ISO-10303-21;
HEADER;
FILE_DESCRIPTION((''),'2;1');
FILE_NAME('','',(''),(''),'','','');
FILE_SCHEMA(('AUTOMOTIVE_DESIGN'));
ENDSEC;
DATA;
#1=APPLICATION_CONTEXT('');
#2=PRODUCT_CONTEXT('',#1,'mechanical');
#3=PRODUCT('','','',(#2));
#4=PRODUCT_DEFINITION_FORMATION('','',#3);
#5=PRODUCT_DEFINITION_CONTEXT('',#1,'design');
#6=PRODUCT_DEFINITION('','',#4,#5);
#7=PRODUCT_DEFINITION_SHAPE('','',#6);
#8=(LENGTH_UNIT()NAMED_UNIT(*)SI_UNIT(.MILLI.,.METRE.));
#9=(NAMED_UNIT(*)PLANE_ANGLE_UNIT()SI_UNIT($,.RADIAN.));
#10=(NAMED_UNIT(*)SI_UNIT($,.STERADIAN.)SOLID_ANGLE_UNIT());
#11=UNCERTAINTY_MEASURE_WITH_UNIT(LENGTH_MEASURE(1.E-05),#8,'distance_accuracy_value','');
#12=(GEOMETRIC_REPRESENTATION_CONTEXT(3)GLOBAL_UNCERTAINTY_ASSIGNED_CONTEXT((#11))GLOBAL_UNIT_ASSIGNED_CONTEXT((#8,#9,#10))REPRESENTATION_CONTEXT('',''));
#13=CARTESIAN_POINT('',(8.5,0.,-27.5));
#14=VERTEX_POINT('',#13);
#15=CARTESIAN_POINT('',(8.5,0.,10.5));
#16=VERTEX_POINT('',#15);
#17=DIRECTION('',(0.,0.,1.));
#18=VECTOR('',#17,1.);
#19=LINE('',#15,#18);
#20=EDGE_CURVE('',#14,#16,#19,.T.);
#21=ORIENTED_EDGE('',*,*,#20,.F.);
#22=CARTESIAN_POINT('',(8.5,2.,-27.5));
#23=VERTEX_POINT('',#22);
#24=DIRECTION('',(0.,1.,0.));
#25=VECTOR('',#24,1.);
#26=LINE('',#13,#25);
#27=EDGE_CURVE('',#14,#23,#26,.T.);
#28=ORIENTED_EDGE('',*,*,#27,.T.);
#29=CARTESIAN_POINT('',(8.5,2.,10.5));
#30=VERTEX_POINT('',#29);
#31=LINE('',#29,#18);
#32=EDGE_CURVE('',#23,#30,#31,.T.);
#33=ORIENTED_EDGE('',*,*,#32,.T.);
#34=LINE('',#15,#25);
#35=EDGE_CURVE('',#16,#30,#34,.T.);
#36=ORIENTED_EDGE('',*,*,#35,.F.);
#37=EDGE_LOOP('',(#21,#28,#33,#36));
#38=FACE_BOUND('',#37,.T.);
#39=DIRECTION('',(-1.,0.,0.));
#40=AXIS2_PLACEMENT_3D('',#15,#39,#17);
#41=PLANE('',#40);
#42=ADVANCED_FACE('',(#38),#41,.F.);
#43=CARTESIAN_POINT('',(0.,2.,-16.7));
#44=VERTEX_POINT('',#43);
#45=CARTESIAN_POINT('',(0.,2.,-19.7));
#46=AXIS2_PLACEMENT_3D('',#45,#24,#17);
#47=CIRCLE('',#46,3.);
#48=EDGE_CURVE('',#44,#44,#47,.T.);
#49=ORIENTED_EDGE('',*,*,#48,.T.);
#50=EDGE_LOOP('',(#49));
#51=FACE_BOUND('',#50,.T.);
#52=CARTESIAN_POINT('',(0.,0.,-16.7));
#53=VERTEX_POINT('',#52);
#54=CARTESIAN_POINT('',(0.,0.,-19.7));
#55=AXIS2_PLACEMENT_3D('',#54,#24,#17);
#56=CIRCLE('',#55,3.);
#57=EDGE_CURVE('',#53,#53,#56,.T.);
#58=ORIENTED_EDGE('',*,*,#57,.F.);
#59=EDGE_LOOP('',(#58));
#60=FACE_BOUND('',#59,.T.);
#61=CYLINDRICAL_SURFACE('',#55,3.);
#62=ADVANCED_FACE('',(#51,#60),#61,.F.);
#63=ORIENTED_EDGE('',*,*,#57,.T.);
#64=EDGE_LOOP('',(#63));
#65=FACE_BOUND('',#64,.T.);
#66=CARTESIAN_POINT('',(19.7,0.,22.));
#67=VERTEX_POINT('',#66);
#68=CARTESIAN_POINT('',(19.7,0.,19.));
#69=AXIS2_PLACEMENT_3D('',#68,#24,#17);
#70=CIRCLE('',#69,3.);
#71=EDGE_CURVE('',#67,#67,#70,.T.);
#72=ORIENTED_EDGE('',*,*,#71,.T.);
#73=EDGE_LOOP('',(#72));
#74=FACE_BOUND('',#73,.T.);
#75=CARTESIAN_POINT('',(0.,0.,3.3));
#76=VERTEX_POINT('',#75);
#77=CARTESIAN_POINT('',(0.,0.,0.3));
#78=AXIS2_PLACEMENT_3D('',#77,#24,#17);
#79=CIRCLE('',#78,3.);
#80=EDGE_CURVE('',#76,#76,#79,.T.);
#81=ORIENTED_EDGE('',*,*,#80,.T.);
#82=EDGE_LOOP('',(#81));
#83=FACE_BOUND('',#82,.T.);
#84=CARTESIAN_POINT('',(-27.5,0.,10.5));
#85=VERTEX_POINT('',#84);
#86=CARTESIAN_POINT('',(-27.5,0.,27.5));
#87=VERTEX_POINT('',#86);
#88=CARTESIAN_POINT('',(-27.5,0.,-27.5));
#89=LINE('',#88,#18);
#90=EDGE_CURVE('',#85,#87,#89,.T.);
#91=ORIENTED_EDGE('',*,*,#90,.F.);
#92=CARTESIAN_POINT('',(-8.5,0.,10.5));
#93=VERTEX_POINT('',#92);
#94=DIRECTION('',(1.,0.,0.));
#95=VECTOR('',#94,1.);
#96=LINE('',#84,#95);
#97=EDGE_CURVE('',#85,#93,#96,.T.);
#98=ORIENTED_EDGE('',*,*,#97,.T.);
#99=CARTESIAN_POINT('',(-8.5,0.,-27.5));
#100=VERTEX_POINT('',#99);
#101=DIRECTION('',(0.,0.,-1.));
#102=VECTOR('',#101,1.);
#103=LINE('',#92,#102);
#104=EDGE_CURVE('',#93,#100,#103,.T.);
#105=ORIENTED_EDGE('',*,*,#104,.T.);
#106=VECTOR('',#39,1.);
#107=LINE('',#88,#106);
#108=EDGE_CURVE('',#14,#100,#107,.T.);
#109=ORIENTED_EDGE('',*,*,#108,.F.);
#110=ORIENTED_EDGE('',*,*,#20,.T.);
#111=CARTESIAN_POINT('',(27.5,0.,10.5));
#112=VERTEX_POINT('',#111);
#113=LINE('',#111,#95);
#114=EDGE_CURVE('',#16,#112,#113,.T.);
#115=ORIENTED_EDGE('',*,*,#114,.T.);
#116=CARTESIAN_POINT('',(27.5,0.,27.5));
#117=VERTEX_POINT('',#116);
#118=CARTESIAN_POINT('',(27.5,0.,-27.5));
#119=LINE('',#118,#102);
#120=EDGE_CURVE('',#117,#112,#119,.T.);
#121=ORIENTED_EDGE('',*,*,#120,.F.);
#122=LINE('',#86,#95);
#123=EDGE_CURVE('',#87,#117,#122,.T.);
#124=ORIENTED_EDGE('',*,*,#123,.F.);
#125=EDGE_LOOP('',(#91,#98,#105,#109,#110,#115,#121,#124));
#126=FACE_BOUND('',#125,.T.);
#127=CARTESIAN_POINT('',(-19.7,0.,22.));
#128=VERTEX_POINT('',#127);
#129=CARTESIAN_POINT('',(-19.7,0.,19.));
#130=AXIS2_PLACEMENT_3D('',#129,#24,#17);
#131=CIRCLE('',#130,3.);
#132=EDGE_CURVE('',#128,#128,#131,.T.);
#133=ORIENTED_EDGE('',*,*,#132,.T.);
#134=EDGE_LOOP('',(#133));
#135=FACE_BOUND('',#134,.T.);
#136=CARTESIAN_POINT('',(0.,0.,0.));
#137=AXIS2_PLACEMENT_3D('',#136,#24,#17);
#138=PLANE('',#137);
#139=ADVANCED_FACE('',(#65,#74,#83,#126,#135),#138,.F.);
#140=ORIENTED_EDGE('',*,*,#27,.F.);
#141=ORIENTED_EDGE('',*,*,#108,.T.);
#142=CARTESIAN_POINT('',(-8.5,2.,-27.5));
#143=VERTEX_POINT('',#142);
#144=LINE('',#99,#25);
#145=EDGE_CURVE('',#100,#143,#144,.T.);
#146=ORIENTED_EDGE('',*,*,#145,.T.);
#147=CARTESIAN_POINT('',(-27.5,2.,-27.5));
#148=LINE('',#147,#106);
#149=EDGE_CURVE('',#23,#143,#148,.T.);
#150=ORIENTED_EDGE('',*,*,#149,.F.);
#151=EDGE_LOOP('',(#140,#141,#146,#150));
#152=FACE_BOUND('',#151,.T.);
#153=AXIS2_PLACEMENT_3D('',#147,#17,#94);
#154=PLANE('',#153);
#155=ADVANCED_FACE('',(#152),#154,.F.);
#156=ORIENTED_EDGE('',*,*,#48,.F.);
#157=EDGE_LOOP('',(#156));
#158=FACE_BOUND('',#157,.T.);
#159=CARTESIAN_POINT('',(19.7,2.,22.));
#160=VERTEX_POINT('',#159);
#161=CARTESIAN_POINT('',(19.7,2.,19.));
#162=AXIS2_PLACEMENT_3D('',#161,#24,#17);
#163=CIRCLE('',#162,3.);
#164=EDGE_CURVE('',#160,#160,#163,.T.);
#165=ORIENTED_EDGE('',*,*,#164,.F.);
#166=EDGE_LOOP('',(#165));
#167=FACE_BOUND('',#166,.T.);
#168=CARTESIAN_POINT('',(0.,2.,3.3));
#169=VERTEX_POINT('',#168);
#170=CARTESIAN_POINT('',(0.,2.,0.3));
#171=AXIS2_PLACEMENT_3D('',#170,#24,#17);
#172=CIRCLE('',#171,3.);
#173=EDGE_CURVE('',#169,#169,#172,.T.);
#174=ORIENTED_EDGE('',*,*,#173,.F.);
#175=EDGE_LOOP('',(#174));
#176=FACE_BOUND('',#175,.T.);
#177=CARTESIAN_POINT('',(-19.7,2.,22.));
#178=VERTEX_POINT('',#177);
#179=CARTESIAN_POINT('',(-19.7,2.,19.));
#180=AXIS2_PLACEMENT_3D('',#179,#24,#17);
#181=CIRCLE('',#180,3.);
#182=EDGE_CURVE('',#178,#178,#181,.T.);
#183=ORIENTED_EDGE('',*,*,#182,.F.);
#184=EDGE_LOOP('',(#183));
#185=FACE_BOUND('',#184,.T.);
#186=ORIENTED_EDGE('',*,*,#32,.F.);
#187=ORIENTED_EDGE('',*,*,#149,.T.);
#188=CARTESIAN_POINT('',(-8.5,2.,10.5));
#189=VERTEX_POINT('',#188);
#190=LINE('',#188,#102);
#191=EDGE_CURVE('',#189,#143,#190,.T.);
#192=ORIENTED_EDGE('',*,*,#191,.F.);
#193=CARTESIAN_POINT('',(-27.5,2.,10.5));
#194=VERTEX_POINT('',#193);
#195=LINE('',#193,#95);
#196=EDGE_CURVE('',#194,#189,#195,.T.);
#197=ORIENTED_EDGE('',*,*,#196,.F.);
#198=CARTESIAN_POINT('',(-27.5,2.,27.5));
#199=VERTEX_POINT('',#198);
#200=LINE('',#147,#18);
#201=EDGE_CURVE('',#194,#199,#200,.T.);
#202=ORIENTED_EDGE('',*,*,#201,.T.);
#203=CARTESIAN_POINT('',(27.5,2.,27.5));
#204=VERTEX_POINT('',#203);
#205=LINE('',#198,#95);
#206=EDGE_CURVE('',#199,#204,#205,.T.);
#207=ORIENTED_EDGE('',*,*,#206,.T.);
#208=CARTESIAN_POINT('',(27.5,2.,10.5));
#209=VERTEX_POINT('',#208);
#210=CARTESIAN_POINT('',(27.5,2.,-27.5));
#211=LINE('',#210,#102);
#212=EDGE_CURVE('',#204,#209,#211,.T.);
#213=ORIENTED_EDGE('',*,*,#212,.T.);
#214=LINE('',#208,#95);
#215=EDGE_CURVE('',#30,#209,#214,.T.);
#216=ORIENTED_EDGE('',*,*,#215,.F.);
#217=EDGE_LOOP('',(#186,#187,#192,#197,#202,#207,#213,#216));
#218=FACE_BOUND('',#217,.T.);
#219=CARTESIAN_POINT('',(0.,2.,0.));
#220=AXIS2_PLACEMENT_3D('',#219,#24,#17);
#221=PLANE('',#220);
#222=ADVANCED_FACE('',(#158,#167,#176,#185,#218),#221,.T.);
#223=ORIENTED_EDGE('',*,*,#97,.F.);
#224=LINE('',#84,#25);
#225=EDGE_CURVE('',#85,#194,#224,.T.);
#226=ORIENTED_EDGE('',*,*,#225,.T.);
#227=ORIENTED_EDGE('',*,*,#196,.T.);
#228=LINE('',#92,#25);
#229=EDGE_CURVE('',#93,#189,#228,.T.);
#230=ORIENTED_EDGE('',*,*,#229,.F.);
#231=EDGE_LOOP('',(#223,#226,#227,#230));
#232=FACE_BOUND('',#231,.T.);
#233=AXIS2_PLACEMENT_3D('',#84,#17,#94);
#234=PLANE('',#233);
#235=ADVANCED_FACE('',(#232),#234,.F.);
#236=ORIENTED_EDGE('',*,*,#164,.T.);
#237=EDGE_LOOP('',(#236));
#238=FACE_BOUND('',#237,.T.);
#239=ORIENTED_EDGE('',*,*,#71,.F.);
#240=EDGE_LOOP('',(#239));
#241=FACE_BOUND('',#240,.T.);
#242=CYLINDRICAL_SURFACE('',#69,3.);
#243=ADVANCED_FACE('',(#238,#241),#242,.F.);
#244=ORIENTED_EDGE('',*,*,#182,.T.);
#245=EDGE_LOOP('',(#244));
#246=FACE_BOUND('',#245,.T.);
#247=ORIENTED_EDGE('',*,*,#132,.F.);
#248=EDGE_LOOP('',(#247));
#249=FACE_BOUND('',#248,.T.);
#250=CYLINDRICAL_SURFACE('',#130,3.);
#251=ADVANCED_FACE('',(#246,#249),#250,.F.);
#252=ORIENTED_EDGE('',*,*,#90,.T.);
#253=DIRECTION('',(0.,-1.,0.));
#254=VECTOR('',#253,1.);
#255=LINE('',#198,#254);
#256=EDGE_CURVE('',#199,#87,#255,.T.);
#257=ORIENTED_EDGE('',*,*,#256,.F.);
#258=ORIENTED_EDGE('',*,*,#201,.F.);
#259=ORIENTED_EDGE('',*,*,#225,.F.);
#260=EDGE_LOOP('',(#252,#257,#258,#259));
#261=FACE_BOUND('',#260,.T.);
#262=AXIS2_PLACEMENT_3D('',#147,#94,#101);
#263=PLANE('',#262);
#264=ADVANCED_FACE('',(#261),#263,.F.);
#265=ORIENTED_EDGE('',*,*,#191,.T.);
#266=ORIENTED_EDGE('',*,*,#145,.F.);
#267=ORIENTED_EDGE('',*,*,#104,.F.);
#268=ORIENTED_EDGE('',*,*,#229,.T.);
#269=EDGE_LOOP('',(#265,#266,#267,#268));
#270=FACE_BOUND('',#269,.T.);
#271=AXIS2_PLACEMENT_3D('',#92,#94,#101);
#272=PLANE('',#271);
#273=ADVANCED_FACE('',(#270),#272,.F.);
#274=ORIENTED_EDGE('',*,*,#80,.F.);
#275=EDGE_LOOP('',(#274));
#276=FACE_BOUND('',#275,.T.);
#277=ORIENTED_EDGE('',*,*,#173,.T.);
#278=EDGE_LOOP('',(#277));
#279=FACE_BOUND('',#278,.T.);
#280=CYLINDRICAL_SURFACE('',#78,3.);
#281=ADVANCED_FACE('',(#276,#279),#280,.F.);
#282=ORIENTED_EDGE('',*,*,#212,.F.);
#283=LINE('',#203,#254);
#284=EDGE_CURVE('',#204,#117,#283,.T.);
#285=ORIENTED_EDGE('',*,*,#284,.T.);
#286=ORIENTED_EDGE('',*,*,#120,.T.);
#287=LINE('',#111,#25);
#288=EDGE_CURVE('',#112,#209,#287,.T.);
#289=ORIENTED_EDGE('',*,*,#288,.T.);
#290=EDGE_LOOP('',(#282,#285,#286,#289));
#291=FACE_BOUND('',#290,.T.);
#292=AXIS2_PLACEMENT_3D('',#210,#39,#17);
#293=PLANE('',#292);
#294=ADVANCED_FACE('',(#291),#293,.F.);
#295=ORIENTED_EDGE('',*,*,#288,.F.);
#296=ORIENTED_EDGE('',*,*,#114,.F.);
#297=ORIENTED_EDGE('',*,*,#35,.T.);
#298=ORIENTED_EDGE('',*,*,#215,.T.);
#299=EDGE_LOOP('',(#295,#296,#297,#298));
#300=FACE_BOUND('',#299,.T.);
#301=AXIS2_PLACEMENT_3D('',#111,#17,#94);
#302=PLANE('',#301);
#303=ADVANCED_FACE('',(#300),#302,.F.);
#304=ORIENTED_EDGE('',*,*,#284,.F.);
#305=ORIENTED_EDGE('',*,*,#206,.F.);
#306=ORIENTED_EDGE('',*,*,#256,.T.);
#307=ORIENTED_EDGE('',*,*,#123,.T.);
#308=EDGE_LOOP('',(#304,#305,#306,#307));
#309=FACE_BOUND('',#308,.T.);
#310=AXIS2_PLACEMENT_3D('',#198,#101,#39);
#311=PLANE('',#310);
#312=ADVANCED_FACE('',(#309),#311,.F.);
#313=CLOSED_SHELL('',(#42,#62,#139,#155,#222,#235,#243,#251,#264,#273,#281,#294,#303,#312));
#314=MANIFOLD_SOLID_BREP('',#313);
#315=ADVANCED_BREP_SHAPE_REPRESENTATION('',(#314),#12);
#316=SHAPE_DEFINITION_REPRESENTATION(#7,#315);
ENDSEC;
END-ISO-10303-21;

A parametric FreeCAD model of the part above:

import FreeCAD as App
import Part
import Sketcher

V = App.Vector

doc = App.newDocument("Part")
body = doc.addObject("PartDesign::Body", "Body")

# Sketch on XZ plane
sketch1 = doc.addObject("Sketcher::SketchObject", "Sketch")
body.addObject(sketch1)
sketch1.AttachmentSupport = (doc.XZ_Plane, [""])
sketch1.MapMode = "FlatFace"
sketch1.addGeometry(Part.LineSegment(V(-27.5, -27.5, 0), V(-27.5, 27.5, 0)), False)
sketch1.addGeometry(Part.LineSegment(V(-27.5, 27.5, 0), V(27.5, 27.5, 0)), False)
sketch1.addGeometry(Part.LineSegment(V(27.5, 27.5, 0), V(27.5, -27.5, 0)), False)
sketch1.addGeometry(Part.LineSegment(V(27.5, -27.5, 0), V(-27.5, -27.5, 0)), False)
sketch1.addConstraint(Sketcher.Constraint("Coincident", 0, 2, 1, 1))
sketch1.addConstraint(Sketcher.Constraint("Coincident", 1, 2, 2, 1))
sketch1.addConstraint(Sketcher.Constraint("Coincident", 2, 2, 3, 1))
sketch1.addConstraint(Sketcher.Constraint("Coincident", 3, 2, 0, 1))
sketch1.addConstraint(Sketcher.Constraint("Vertical", 0))
sketch1.addConstraint(Sketcher.Constraint("Horizontal", 1))
sketch1.addConstraint(Sketcher.Constraint("Vertical", 2))
sketch1.addConstraint(Sketcher.Constraint("Horizontal", 3))
sketch1.addConstraint(Sketcher.Constraint("Symmetric", 0, 2, 2, 2, -1, 1))
sketch1.addConstraint(Sketcher.Constraint("Equal", 3, 0))
sketch1.addConstraint(Sketcher.Constraint("DistanceX", 1, 1, 1, 2, 55.0))
pad1 = doc.addObject("PartDesign::Pad", "Pad")
body.addObject(pad1)
pad1.Profile = sketch1
pad1.Length = 2
pad1.Reversed = True

# Sketch on XZ plane
sketch2 = doc.addObject("Sketcher::SketchObject", "Sketch001")
body.addObject(sketch2)
sketch2.AttachmentSupport = (doc.XZ_Plane, [""])
sketch2.MapMode = "FlatFace"
sketch2.AttachmentOffset = App.Placement(V(0, 0, -2), App.Rotation())
sketch2.addGeometry(Part.LineSegment(V(-27.5, -27.5, 0), V(-27.5, 10.5, 0)), False)
sketch2.addGeometry(Part.LineSegment(V(-27.5, 10.5, 0), V(-8.5, 10.5, 0)), False)
sketch2.addGeometry(Part.LineSegment(V(-8.5, 10.5, 0), V(-8.5, -27.5, 0)), False)
sketch2.addGeometry(Part.LineSegment(V(-8.5, -27.5, 0), V(-27.5, -27.5, 0)), False)
sketch2.addGeometry(Part.LineSegment(V(8.5, -27.5, 0), V(8.5, 10.5, 0)), False)
sketch2.addGeometry(Part.LineSegment(V(8.5, 10.5, 0), V(27.5, 10.5, 0)), False)
sketch2.addGeometry(Part.LineSegment(V(27.5, 10.5, 0), V(27.5, -27.5, 0)), False)
sketch2.addGeometry(Part.LineSegment(V(27.5, -27.5, 0), V(8.5, -27.5, 0)), False)
sketch2.addConstraint(Sketcher.Constraint("Coincident", 0, 2, 1, 1))
sketch2.addConstraint(Sketcher.Constraint("Coincident", 1, 2, 2, 1))
sketch2.addConstraint(Sketcher.Constraint("Coincident", 2, 2, 3, 1))
sketch2.addConstraint(Sketcher.Constraint("Coincident", 3, 2, 0, 1))
sketch2.addConstraint(Sketcher.Constraint("Coincident", 4, 2, 5, 1))
sketch2.addConstraint(Sketcher.Constraint("Coincident", 5, 2, 6, 1))
sketch2.addConstraint(Sketcher.Constraint("Coincident", 6, 2, 7, 1))
sketch2.addConstraint(Sketcher.Constraint("Coincident", 7, 2, 4, 1))
sketch2.addConstraint(Sketcher.Constraint("Vertical", 0))
sketch2.addConstraint(Sketcher.Constraint("Horizontal", 1))
sketch2.addConstraint(Sketcher.Constraint("Vertical", 2))
sketch2.addConstraint(Sketcher.Constraint("Horizontal", 3))
sketch2.addConstraint(Sketcher.Constraint("Vertical", 4))
sketch2.addConstraint(Sketcher.Constraint("Horizontal", 5))
sketch2.addConstraint(Sketcher.Constraint("Vertical", 6))
sketch2.addConstraint(Sketcher.Constraint("Horizontal", 7))
sketch2.addConstraint(Sketcher.Constraint("Symmetric", 1, 2, 4, 2, -2))
sketch2.addConstraint(Sketcher.Constraint("Symmetric", 3, 2, 6, 2, -2))
sketch2.addConstraint(Sketcher.Constraint("DistanceX", 1, 1, 1, 2, 19.0))
sketch2.addConstraint(Sketcher.Constraint("DistanceY", 0, 1, 0, 2, 38.0))
sketch2.addConstraint(Sketcher.Constraint("DistanceX", 1, 2, 4, 2, 17.0))
sketch2.addConstraint(Sketcher.Constraint("DistanceY", -1, 1, 0, 2, 10.5))
pocket1 = doc.addObject("PartDesign::Pocket", "Pocket")
body.addObject(pocket1)
pocket1.Profile = sketch2
pocket1.Type = "ThroughAll"
pocket1.Reversed = True

# Sketch on XZ plane
sketch3 = doc.addObject("Sketcher::SketchObject", "Sketch002")
body.addObject(sketch3)
sketch3.AttachmentSupport = (doc.XZ_Plane, [""])
sketch3.MapMode = "FlatFace"
sketch3.AttachmentOffset = App.Placement(V(0, 0, -2), App.Rotation())
sketch3.addGeometry(Part.Circle(V(-19.7, 19, 0), V(0, 0, 1), 3), False)
sketch3.addGeometry(Part.Circle(V(19.7, 19, 0), V(0, 0, 1), 3), False)
sketch3.addGeometry(Part.Circle(V(0, 0.3, 0), V(0, 0, 1), 3), False)
sketch3.addGeometry(Part.Circle(V(0, -19.7, 0), V(0, 0, 1), 3), False)
sketch3.addConstraint(Sketcher.Constraint("Equal", 0, 1))
sketch3.addConstraint(Sketcher.Constraint("Equal", 1, 2))
sketch3.addConstraint(Sketcher.Constraint("Equal", 2, 3))
sketch3.addConstraint(Sketcher.Constraint("Symmetric", 0, 3, 1, 3, -2))
sketch3.addConstraint(Sketcher.Constraint("PointOnObject", 2, 3, -2))
sketch3.addConstraint(Sketcher.Constraint("PointOnObject", 3, 3, -2))
sketch3.addConstraint(Sketcher.Constraint("Diameter", 0, 6.0))
sketch3.addConstraint(Sketcher.Constraint("DistanceY", -1, 1, 0, 3, 19.0))
sketch3.addConstraint(Sketcher.Constraint("DistanceY", 3, 3, 2, 3, 20.0))
sketch3.addConstraint(Sketcher.Constraint("DistanceX", 0, 3, -1, 1, 19.7))
sketch3.addConstraint(Sketcher.Constraint("DistanceY", -1, 1, 2, 3, 0.3))
pocket2 = doc.addObject("PartDesign::Pocket", "Pocket001")
body.addObject(pocket2)
pocket2.Profile = sketch3
pocket2.Type = "ThroughAll"
pocket2.Reversed = True

doc.recompute()
